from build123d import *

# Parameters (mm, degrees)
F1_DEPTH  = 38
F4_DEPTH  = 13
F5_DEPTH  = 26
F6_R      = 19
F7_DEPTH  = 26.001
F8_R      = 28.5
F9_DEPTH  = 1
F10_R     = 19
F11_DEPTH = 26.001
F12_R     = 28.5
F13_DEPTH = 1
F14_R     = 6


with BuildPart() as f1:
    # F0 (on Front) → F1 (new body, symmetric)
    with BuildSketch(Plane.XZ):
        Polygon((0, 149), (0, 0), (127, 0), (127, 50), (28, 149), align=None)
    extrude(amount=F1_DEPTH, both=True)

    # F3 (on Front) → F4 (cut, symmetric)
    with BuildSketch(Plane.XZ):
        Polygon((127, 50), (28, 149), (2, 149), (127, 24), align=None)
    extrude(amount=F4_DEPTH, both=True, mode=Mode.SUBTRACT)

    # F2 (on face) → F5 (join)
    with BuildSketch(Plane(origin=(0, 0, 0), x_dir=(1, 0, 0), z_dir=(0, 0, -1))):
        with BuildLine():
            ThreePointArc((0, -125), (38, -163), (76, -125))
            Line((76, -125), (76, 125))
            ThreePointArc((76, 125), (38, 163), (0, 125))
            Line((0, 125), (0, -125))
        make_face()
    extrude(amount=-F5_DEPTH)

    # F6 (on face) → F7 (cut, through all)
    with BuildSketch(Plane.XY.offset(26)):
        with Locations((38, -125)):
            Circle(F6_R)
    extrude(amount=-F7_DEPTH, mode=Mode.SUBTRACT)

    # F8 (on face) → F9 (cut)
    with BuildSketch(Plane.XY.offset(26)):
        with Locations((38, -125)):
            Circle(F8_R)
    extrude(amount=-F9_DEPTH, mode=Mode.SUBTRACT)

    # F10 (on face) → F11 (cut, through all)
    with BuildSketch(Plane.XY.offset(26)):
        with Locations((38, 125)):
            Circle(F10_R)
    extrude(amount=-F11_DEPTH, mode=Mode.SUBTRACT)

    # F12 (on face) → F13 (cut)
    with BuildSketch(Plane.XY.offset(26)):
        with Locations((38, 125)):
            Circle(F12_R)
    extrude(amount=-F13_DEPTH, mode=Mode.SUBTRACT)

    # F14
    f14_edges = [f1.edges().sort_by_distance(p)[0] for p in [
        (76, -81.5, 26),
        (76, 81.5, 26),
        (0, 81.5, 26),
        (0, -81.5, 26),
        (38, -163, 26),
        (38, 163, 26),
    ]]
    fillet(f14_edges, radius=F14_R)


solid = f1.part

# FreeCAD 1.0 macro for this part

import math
import FreeCAD as App
import Part
import Sketcher

V = App.Vector
Q = App.Units.Quantity


def edges_at(feature, points):
    """Names of the edges that pass closest to the given points."""
    edges = feature.Shape.Edges
    near = lambda p: min(range(len(edges)), key=lambda i: edges[i].distToShape(Part.Vertex(*p))[0])
    return sorted({f"Edge{near(p) + 1}" for p in points})


def add_polygon(sketch, points):
    """Adds a closed chain of lines whose ends are joined by coincident constraints."""
    first, n = sketch.GeometryCount, len(points)
    for a, b in zip(points, points[1:] + points[:1]):
        sketch.addGeometry(Part.LineSegment(App.Vector(*a, 0), App.Vector(*b, 0)), False)
    for i in range(n):
        sketch.addConstraint(Sketcher.Constraint("Coincident", first + i, 2, first + (i + 1) % n, 1))

doc = App.newDocument("Part")
body = doc.addObject("PartDesign::Body", "Body")

# Sketch on XZ plane
sketch1 = body.newObject("Sketcher::SketchObject", "Sketch")
sketch1.AttachmentSupport = (doc.getObject("XZ_Plane"), [""])
sketch1.MapMode = "FlatFace"
add_polygon(sketch1, [(0, 149), (0, 0), (127, 0), (127, 50), (28, 149)])  # lines 0-4
sketch1.addConstraint(Sketcher.Constraint("Vertical", 0))
sketch1.addConstraint(Sketcher.Constraint("Horizontal", 1))
sketch1.addConstraint(Sketcher.Constraint("Vertical", 2))
sketch1.addConstraint(Sketcher.Constraint("Horizontal", 4))
sketch1.addConstraint(Sketcher.Constraint("Coincident", 0, 2, -1, 1))
sketch1.addConstraint(Sketcher.Constraint("DistanceX", 1, 1, 1, 2, Q("127 mm")))
sketch1.addConstraint(Sketcher.Constraint("DistanceX", 4, 2, 4, 1, Q("28 mm")))
sketch1.addConstraint(Sketcher.Constraint("DistanceY", 0, 2, 0, 1, Q("149 mm")))
sketch1.addConstraint(Sketcher.Constraint("DistanceY", 2, 1, 2, 2, Q("50 mm")))
pad1 = body.newObject("PartDesign::Pad", "Pad")
pad1.Profile = sketch1
pad1.Length = 76
pad1.Midplane = True

# Sketch on XZ plane
sketch2 = body.newObject("Sketcher::SketchObject", "Sketch001")
sketch2.AttachmentSupport = (doc.getObject("XZ_Plane"), [""])
sketch2.MapMode = "FlatFace"
add_polygon(sketch2, [(127, 50), (28, 149), (2, 149), (127, 24)])  # lines 0-3
sketch2.addConstraint(Sketcher.Constraint("Horizontal", 1))
sketch2.addConstraint(Sketcher.Constraint("Vertical", 3))
sketch2.addConstraint(Sketcher.Constraint("Parallel", 0, 2))
sketch2.addConstraint(Sketcher.Constraint("Equal", 1, 3))
sketch2.addConstraint(Sketcher.Constraint("DistanceX", 1, 2, 1, 1, Q("26 mm")))
sketch2.addConstraint(Sketcher.Constraint("DistanceX", -1, 1, 0, 2, Q("28 mm")))
sketch2.addConstraint(Sketcher.Constraint("DistanceY", -1, 1, 0, 2, Q("149 mm")))
sketch2.addConstraint(Sketcher.Constraint("DistanceX", -1, 1, 2, 2, Q("127 mm")))
pocket1 = body.newObject("PartDesign::Pocket", "Pocket")
pocket1.Profile = sketch2
pocket1.Length = 26
pocket1.Midplane = True

# Sketch on XY plane
sketch3 = body.newObject("Sketcher::SketchObject", "Sketch002")
sketch3.AttachmentSupport = (doc.getObject("XY_Plane"), [""])
sketch3.MapMode = "FlatFace"
sketch3.addGeometry(Part.ArcOfCircle(Part.Circle(V(38, 125, 0), V(0, 0, 1), 38), math.radians(0), math.radians(180)), False)
sketch3.addGeometry(Part.LineSegment(V(76, 125, 0), V(76, -125, 0)), False)
sketch3.addGeometry(Part.ArcOfCircle(Part.Circle(V(38, -125, 0), V(0, 0, 1), 38), math.radians(180), math.radians(360)), False)
sketch3.addGeometry(Part.LineSegment(V(0, -125, 0), V(0, 125, 0)), False)
sketch3.addConstraint(Sketcher.Constraint("Tangent", 0, 1, 1, 1))
sketch3.addConstraint(Sketcher.Constraint("Tangent", 1, 2, 2, 2))
sketch3.addConstraint(Sketcher.Constraint("Tangent", 2, 1, 3, 1))
sketch3.addConstraint(Sketcher.Constraint("Tangent", 3, 2, 0, 2))
sketch3.addConstraint(Sketcher.Constraint("Vertical", 1))
sketch3.addConstraint(Sketcher.Constraint("Vertical", 3))
sketch3.addConstraint(Sketcher.Constraint("Symmetric", 2, 1, 3, 2, -1, 1))
sketch3.addConstraint(Sketcher.Constraint("Radius", 0, Q("38 mm")))
sketch3.addConstraint(Sketcher.Constraint("DistanceY", 1, 2, 1, 1, Q("250 mm")))
pad2 = body.newObject("PartDesign::Pad", "Pad001")
pad2.Profile = sketch3
pad2.Length = 26

# Sketch on XY plane
sketch4 = body.newObject("Sketcher::SketchObject", "Sketch003")
sketch4.AttachmentSupport = (doc.getObject("XY_Plane"), [""])
sketch4.MapMode = "FlatFace"
sketch4.AttachmentOffset = App.Placement(V(0, 0, 26), App.Rotation())
sketch4.addGeometry(Part.Circle(V(38, -125, 0), V(0, 0, 1), 19), False)
sketch4.addConstraint(Sketcher.Constraint("Diameter", 0, Q("38 mm")))
sketch4.addConstraint(Sketcher.Constraint("DistanceX", -1, 1, 0, 3, Q("38 mm")))
sketch4.addConstraint(Sketcher.Constraint("DistanceY", 0, 3, -1, 1, Q("125 mm")))
pocket2 = body.newObject("PartDesign::Pocket", "Pocket001")
pocket2.Profile = sketch4
pocket2.Type = "ThroughAll"

# Sketch on XY plane
sketch5 = body.newObject("Sketcher::SketchObject", "Sketch004")
sketch5.AttachmentSupport = (doc.getObject("XY_Plane"), [""])
sketch5.MapMode = "FlatFace"
sketch5.AttachmentOffset = App.Placement(V(0, 0, 26), App.Rotation())
sketch5.addGeometry(Part.Circle(V(38, -125, 0), V(0, 0, 1), 28), False)
sketch5.addConstraint(Sketcher.Constraint("Diameter", 0, Q("57 mm")))
sketch5.addConstraint(Sketcher.Constraint("DistanceX", -1, 1, 0, 3, Q("38 mm")))
sketch5.addConstraint(Sketcher.Constraint("DistanceY", 0, 3, -1, 1, Q("125 mm")))
pocket3 = body.newObject("PartDesign::Pocket", "Pocket002")
pocket3.Profile = sketch5
pocket3.Length = 1

# Sketch on XY plane
sketch6 = body.newObject("Sketcher::SketchObject", "Sketch005")
sketch6.AttachmentSupport = (doc.getObject("XY_Plane"), [""])
sketch6.MapMode = "FlatFace"
sketch6.AttachmentOffset = App.Placement(V(0, 0, 26), App.Rotation())
sketch6.addGeometry(Part.Circle(V(38, 125, 0), V(0, 0, 1), 19), False)
sketch6.addConstraint(Sketcher.Constraint("Diameter", 0, Q("38 mm")))
sketch6.addConstraint(Sketcher.Constraint("DistanceX", -1, 1, 0, 3, Q("38 mm")))
sketch6.addConstraint(Sketcher.Constraint("DistanceY", -1, 1, 0, 3, Q("125 mm")))
pocket4 = body.newObject("PartDesign::Pocket", "Pocket003")
pocket4.Profile = sketch6
pocket4.Type = "ThroughAll"

# Sketch on XY plane
sketch7 = body.newObject("Sketcher::SketchObject", "Sketch006")
sketch7.AttachmentSupport = (doc.getObject("XY_Plane"), [""])
sketch7.MapMode = "FlatFace"
sketch7.AttachmentOffset = App.Placement(V(0, 0, 26), App.Rotation())
sketch7.addGeometry(Part.Circle(V(38, 125, 0), V(0, 0, 1), 28), False)
sketch7.addConstraint(Sketcher.Constraint("Diameter", 0, Q("57 mm")))
sketch7.addConstraint(Sketcher.Constraint("DistanceX", -1, 1, 0, 3, Q("38 mm")))
sketch7.addConstraint(Sketcher.Constraint("DistanceY", -1, 1, 0, 3, Q("125 mm")))
pocket5 = body.newObject("PartDesign::Pocket", "Pocket004")
pocket5.Profile = sketch7
pocket5.Length = 1
doc.recompute()

fillet = body.newObject("PartDesign::Fillet", "Fillet")
fillet.Base = (pocket5, edges_at(pocket5, [
    (76, -81.5, 26),
    (76, 81.5, 26),
    (0, 81.5, 26),
    (0, -81.5, 26),
    (38, -163, 26),
    (38, 163, 26),
]))
fillet.Radius = 6

doc.recompute()
